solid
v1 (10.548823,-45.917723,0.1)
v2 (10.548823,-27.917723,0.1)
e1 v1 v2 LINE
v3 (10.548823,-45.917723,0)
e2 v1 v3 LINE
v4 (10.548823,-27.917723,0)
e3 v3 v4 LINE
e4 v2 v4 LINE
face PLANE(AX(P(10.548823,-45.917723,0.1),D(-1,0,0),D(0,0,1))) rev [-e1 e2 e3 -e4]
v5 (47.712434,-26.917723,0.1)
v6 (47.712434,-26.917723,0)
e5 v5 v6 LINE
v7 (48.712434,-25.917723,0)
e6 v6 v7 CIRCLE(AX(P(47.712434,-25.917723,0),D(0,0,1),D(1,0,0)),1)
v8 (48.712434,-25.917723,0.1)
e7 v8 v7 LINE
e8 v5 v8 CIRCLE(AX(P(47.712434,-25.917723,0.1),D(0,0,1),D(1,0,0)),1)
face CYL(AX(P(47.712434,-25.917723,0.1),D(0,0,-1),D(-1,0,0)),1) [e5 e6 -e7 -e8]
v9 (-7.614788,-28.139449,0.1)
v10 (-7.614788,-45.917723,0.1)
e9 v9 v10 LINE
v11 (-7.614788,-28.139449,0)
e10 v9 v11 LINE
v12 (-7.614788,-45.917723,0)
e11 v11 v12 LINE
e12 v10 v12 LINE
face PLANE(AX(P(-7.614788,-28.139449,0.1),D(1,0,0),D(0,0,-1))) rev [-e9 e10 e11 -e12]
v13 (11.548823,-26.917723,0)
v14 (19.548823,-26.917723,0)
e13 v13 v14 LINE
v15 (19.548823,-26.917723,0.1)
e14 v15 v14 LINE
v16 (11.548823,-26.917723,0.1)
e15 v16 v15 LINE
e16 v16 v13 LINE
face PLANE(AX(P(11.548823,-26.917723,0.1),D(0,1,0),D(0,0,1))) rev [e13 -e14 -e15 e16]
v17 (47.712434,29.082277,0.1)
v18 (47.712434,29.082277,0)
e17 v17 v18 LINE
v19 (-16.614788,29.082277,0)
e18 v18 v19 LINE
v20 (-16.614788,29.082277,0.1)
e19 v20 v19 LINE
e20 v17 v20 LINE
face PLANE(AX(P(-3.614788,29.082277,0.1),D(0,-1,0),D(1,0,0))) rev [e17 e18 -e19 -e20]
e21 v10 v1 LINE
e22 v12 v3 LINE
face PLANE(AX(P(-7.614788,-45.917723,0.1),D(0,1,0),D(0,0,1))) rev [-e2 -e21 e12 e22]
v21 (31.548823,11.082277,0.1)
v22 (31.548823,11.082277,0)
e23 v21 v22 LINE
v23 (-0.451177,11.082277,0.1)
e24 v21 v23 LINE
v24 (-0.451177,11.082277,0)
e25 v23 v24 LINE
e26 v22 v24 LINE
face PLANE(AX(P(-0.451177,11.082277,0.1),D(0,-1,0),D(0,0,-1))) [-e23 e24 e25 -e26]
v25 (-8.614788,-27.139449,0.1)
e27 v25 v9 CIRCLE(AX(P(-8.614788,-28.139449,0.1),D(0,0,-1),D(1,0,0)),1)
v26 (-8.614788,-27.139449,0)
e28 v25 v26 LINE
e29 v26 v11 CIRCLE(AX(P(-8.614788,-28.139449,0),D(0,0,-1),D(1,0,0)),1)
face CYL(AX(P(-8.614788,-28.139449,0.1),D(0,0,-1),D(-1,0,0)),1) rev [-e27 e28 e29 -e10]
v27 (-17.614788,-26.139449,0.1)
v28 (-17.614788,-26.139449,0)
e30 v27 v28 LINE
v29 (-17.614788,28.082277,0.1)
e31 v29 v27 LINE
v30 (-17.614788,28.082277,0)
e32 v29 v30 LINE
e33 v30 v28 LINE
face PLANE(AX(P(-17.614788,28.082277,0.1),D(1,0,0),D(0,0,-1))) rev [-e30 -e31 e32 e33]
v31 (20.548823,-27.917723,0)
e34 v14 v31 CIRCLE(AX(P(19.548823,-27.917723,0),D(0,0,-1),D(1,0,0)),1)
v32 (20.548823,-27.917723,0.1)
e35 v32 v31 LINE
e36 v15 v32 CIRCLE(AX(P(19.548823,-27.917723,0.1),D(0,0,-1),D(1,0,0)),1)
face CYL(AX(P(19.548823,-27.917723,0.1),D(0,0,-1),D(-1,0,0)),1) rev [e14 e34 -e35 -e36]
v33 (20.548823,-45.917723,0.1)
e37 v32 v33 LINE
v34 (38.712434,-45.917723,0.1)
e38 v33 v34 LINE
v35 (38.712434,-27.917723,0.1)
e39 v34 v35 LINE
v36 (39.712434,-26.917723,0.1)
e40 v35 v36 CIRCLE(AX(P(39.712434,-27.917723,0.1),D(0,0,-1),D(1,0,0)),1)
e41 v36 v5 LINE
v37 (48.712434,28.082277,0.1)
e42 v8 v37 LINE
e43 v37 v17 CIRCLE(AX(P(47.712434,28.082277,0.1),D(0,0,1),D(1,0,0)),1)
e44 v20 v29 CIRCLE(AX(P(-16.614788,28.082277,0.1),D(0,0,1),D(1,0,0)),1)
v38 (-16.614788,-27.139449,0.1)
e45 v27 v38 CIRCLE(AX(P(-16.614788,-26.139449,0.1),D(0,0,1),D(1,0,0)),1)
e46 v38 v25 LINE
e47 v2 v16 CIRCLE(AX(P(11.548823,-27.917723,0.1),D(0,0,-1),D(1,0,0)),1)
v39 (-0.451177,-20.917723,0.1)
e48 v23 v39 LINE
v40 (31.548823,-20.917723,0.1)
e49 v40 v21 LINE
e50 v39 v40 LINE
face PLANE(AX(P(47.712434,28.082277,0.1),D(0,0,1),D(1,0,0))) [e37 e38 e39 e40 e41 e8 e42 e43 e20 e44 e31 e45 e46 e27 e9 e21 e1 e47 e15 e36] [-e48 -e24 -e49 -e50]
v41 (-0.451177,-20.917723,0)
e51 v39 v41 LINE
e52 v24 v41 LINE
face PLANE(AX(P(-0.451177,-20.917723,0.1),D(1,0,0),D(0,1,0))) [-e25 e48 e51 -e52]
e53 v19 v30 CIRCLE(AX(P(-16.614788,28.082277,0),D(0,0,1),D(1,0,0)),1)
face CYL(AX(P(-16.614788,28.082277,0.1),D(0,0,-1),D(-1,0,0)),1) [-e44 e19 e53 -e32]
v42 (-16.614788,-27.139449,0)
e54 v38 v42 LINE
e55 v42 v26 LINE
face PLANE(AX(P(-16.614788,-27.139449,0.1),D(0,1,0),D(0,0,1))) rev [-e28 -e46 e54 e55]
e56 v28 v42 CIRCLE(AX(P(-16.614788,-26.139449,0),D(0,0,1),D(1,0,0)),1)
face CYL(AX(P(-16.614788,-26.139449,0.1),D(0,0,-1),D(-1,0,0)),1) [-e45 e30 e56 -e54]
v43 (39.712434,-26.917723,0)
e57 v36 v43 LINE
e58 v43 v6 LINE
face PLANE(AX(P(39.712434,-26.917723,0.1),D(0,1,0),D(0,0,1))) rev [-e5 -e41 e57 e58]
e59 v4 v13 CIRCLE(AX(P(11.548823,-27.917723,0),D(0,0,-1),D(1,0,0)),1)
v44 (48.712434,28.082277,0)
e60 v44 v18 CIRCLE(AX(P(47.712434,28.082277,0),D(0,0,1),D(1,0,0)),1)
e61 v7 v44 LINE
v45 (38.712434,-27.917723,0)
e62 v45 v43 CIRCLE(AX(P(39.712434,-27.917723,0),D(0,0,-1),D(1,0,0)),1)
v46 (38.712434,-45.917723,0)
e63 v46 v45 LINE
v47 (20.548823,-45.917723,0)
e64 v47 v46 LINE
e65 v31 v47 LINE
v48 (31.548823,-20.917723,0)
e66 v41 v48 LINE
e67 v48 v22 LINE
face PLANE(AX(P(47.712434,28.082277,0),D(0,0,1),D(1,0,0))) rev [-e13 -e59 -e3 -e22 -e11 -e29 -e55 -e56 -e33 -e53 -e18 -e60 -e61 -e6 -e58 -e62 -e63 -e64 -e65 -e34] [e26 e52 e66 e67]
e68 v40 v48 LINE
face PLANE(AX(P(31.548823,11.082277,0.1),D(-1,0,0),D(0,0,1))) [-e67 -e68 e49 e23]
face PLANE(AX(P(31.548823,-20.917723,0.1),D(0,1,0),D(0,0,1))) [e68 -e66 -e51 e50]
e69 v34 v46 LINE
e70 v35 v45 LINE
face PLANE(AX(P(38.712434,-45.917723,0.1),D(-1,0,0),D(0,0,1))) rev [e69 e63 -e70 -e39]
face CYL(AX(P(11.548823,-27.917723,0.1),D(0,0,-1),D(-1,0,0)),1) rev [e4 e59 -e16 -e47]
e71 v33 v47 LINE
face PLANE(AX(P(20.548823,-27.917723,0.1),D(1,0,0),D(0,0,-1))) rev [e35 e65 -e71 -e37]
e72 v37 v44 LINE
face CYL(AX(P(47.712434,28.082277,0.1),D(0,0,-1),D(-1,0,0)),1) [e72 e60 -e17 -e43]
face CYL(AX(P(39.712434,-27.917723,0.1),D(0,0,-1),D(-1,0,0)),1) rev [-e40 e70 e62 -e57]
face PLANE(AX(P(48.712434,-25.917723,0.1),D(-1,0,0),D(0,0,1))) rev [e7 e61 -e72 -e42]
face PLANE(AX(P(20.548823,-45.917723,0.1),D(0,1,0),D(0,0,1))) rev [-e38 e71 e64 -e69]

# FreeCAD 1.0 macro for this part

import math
import FreeCAD as App
import Part
import Sketcher


def add_polygon(sketch, points):
    """Adds a closed chain of lines whose ends are joined by coincident constraints."""
    first, n = sketch.GeometryCount, len(points)
    for a, b in zip(points, points[1:] + points[:1]):
        sketch.addGeometry(Part.LineSegment(App.Vector(*a, 0), App.Vector(*b, 0)), False)
    for i in range(n):
        sketch.addConstraint(Sketcher.Constraint("Coincident", first + i, 2, first + (i + 1) % n, 1))

doc = App.newDocument("Part")
body = doc.addObject("PartDesign::Body", "Body")

# Sketch on XY plane
sketch1 = body.newObject("Sketcher::SketchObject", "Sketch")
sketch1.AttachmentSupport = (doc.getObject("XY_Plane"), [""])
sketch1.MapMode = "FlatFace"
sketch1.addGeometry(Part.ArcOfCircle(Part.Circle(App.Vector(47.7, 28.1, 0), App.Vector(0, 0, 1), 1), math.radians(0), math.radians(90)), False)  # 0
sketch1.addGeometry(Part.LineSegment(App.Vector(47.7, 29.1, 0), App.Vector(-16.6, 29.1, 0)), False)  # 1
sketch1.addGeometry(Part.ArcOfCircle(Part.Circle(App.Vector(-16.6, 28.1, 0), App.Vector(0, 0, 1), 1), math.radians(90), math.radians(180)), False)  # 2
sketch1.addGeometry(Part.LineSegment(App.Vector(-17.6, 28.1, 0), App.Vector(-17.6, -26.1, 0)), False)  # 3
sketch1.addGeometry(Part.ArcOfCircle(Part.Circle(App.Vector(-16.6, -26.1, 0), App.Vector(0, 0, 1), 1), math.radians(-180), math.radians(-90)), False)  # 4
sketch1.addGeometry(Part.LineSegment(App.Vector(-16.6, -27.1, 0), App.Vector(-8.6, -27.1, 0)), False)  # 5
sketch1.addGeometry(Part.ArcOfCircle(Part.Circle(App.Vector(-8.6, -28.1, 0), App.Vector(0, 0, 1), 1), math.radians(0), math.radians(90)), False)  # 6
sketch1.addGeometry(Part.LineSegment(App.Vector(-7.6, -28.1, 0), App.Vector(-7.6, -45.9, 0)), False)  # 7
sketch1.addGeometry(Part.LineSegment(App.Vector(-7.6, -45.9, 0), App.Vector(10.5, -45.9, 0)), False)  # 8
sketch1.addGeometry(Part.LineSegment(App.Vector(10.5, -45.9, 0), App.Vector(10.5, -27.9, 0)), False)  # 9
sketch1.addGeometry(Part.ArcOfCircle(Part.Circle(App.Vector(11.5, -27.9, 0), App.Vector(0, 0, 1), 1), math.radians(90), math.radians(180)), False)  # 10
sketch1.addGeometry(Part.LineSegment(App.Vector(11.5, -26.9, 0), App.Vector(19.5, -26.9, 0)), False)  # 11
sketch1.addGeometry(Part.ArcOfCircle(Part.Circle(App.Vector(19.5, -27.9, 0), App.Vector(0, 0, 1), 1), math.radians(0), math.radians(90)), False)  # 12
sketch1.addGeometry(Part.LineSegment(App.Vector(20.5, -27.9, 0), App.Vector(20.5, -45.9, 0)), False)  # 13
sketch1.addGeometry(Part.LineSegment(App.Vector(20.5, -45.9, 0), App.Vector(38.7, -45.9, 0)), False)  # 14
sketch1.addGeometry(Part.LineSegment(App.Vector(38.7, -45.9, 0), App.Vector(38.7, -27.9, 0)), False)  # 15
sketch1.addGeometry(Part.ArcOfCircle(Part.Circle(App.Vector(39.7, -27.9, 0), App.Vector(0, 0, 1), 1), math.radians(90), math.radians(180)), False)  # 16
sketch1.addGeometry(Part.LineSegment(App.Vector(39.7, -26.9, 0), App.Vector(47.7, -26.9, 0)), False)  # 17
sketch1.addGeometry(Part.ArcOfCircle(Part.Circle(App.Vector(47.7, -25.9, 0), App.Vector(0, 0, 1), 1), math.radians(-90), math.radians(0)), False)  # 18
sketch1.addGeometry(Part.LineSegment(App.Vector(48.7, -25.9, 0), App.Vector(48.7, 28.1, 0)), False)  # 19
add_polygon(sketch1, [(31.5, 11.1), (31.5, -20.9), (-0.5, -20.9), (-0.5, 11.1)])  # lines 20-23
sketch1.addConstraint(Sketcher.Constraint("Tangent", 0, 2, 1, 1))
sketch1.addConstraint(Sketcher.Constraint("Tangent", 1, 2, 2, 1))
sketch1.addConstraint(Sketcher.Constraint("Tangent", 2, 2, 3, 1))
sketch1.addConstraint(Sketcher.Constraint("Tangent", 3, 2, 4, 1))
sketch1.addConstraint(Sketcher.Constraint("Tangent", 4, 2, 5, 1))
sketch1.addConstraint(Sketcher.Constraint("Tangent", 5, 2, 6, 2))
sketch1.addConstraint(Sketcher.Constraint("Tangent", 6, 1, 7, 1))
sketch1.addConstraint(Sketcher.Constraint("Coincident", 7, 2, 8, 1))
sketch1.addConstraint(Sketcher.Constraint("Coincident", 8, 2, 9, 1))
sketch1.addConstraint(Sketcher.Constraint("Tangent", 9, 2, 10, 2))
sketch1.addConstraint(Sketcher.Constraint("Tangent", 10, 1, 11, 1))
sketch1.addConstraint(Sketcher.Constraint("Tangent", 11, 2, 12, 2))
sketch1.addConstraint(Sketcher.Constraint("Tangent", 12, 1, 13, 1))
sketch1.addConstraint(Sketcher.Constraint("Coincident", 13, 2, 14, 1))
sketch1.addConstraint(Sketcher.Constraint("Coincident", 14, 2, 15, 1))
sketch1.addConstraint(Sketcher.Constraint("Tangent", 15, 2, 16, 2))
sketch1.addConstraint(Sketcher.Constraint("Tangent", 16, 1, 17, 1))
sketch1.addConstraint(Sketcher.Constraint("Tangent", 17, 2, 18, 1))
sketch1.addConstraint(Sketcher.Constraint("Tangent", 18, 2, 19, 1))
sketch1.addConstraint(Sketcher.Constraint("Tangent", 19, 2, 0, 1))
sketch1.addConstraint(Sketcher.Constraint("Horizontal", 1))
sketch1.addConstraint(Sketcher.Constraint("Vertical", 3))
sketch1.addConstraint(Sketcher.Constraint("Horizontal", 5))
sketch1.addConstraint(Sketcher.Constraint("Vertical", 7))
sketch1.addConstraint(Sketcher.Constraint("Horizontal", 8))
sketch1.addConstraint(Sketcher.Constraint("Vertical", 9))
sketch1.addConstraint(Sketcher.Constraint("Horizontal", 11))
sketch1.addConstraint(Sketcher.Constraint("Vertical", 13))
sketch1.addConstraint(Sketcher.Constraint("Horizontal", 14))
sketch1.addConstraint(Sketcher.Constraint("Vertical", 15))
sketch1.addConstraint(Sketcher.Constraint("Horizontal", 17))
sketch1.addConstraint(Sketcher.Constraint("Vertical", 19))
sketch1.addConstraint(Sketcher.Constraint("Vertical", 20))
sketch1.addConstraint(Sketcher.Constraint("Horizontal", 21))
sketch1.addConstraint(Sketcher.Constraint("Vertical", 22))
sketch1.addConstraint(Sketcher.Constraint("Horizontal", 23))
sketch1.addConstraint(Sketcher.Constraint("Equal", 0, 2))
sketch1.addConstraint(Sketcher.Constraint("Equal", 2, 4))
sketch1.addConstraint(Sketcher.Constraint("Equal", 4, 6))
sketch1.addConstraint(Sketcher.Constraint("Equal", 6, 10))
sketch1.addConstraint(Sketcher.Constraint("Equal", 10, 12))
sketch1.addConstraint(Sketcher.Constraint("Equal", 12, 16))
sketch1.addConstraint(Sketcher.Constraint("Equal", 16, 18))
sketch1.addConstraint(Sketcher.Constraint("Horizontal", 12, 3, 16, 3))
sketch1.addConstraint(Sketcher.Constraint("Horizontal", 8, 2, 13, 2))
sketch1.addConstraint(Sketcher.Constraint("Equal", 5, 11))
sketch1.addConstraint(Sketcher.Constraint("Equal", 8, 14))
sketch1.addConstraint(Sketcher.Constraint("Equal", 11, 17))
sketch1.addConstraint(Sketcher.Constraint("Equal", 23, 20))
sketch1.addConstraint(Sketcher.Constraint("Radius", 0, 1.0))
sketch1.addConstraint(Sketcher.Constraint("DistanceX", 5, 1, 5, 2, 8.0))
sketch1.addConstraint(Sketcher.Constraint("DistanceX", 21, 2, 21, 1, 32.0))
sketch1.addConstraint(Sketcher.Constraint("DistanceY", 9, 1, 9, 2, 18.0))
sketch1.addConstraint(Sketcher.Constraint("DistanceY", 19, 1, 19, 2, 54.0))
sketch1.addConstraint(Sketcher.Constraint("DistanceY", 15, 2, 20, 2, 7.0))
sketch1.addConstraint(Sketcher.Constraint("DistanceX", 12, 1, 20, 2, 11.0))
sketch1.addConstraint(Sketcher.Constraint("DistanceX", 8, 1, 8, 2, 18.163611))
sketch1.addConstraint(Sketcher.Constraint("DistanceY", 3, 2, 3, 1, 54.221726))
sketch1.addConstraint(Sketcher.Constraint("DistanceX", 2, 3, -1, 1, 16.614788))
sketch1.addConstraint(Sketcher.Constraint("DistanceY", 4, 3, -1, 1, 26.139449))
pad1 = body.newObject("PartDesign::Pad", "Pad")
pad1.Profile = sketch1
pad1.Length = 0.1

doc.recompute()
